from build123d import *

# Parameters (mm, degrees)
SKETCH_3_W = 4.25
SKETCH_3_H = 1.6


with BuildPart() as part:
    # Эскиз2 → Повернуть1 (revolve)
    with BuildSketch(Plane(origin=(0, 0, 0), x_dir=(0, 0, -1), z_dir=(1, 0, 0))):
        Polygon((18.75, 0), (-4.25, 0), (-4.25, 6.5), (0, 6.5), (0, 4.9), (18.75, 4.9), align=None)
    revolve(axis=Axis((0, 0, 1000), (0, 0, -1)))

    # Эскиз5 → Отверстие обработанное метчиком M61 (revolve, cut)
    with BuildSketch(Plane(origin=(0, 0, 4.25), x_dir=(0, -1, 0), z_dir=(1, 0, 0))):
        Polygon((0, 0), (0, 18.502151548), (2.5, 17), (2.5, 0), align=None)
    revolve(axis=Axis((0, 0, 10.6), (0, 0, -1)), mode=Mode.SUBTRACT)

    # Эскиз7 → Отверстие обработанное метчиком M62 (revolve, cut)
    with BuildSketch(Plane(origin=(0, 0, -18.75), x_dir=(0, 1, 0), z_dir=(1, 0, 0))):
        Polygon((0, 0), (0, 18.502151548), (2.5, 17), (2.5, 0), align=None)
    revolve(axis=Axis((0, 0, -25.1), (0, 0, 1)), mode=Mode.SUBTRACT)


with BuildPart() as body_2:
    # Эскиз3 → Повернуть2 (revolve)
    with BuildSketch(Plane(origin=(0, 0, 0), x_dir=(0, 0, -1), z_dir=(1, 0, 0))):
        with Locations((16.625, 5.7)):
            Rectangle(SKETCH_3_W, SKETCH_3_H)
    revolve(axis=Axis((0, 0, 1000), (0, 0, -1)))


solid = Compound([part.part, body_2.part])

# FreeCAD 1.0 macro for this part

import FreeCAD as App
import Part
import Sketcher
Q = App.Units.Quantity


def add_polygon(sketch, points):
    """Adds a closed chain of lines whose ends are joined by coincident constraints."""
    first, n = sketch.GeometryCount, len(points)
    for a, b in zip(points, points[1:] + points[:1]):
        sketch.addGeometry(Part.LineSegment(App.Vector(*a, 0), App.Vector(*b, 0)), False)
    for i in range(n):
        sketch.addConstraint(Sketcher.Constraint("Coincident", first + i, 2, first + (i + 1) % n, 1))

doc = App.newDocument("Part")
body = doc.addObject("PartDesign::Body", "Body")

# Sketch on YZ plane
sketch1 = doc.addObject("Sketcher::SketchObject", "Sketch")
body.addObject(sketch1)
sketch1.AttachmentSupport = (doc.YZ_Plane, [""])
sketch1.MapMode = "FlatFace"
add_polygon(sketch1, [(0, 4.2), (0, -18.8), (4.9, -18.8), (4.9, 0), (6.5, 0), (6.5, 4.2)])  # lines 0-5
sketch1.addConstraint(Sketcher.Constraint("Vertical", 0))
sketch1.addConstraint(Sketcher.Constraint("Horizontal", 1))
sketch1.addConstraint(Sketcher.Constraint("Vertical", 2))
sketch1.addConstraint(Sketcher.Constraint("Horizontal", 3))
sketch1.addConstraint(Sketcher.Constraint("Vertical", 4))
sketch1.addConstraint(Sketcher.Constraint("Horizontal", 5))
sketch1.addConstraint(Sketcher.Constraint("PointOnObject", 0, 2, -2))
sketch1.addConstraint(Sketcher.Constraint("PointOnObject", 2, 2, -1))
sketch1.addConstraint(Sketcher.Constraint("DistanceY", 0, 2, 0, 1, Q("23 mm")))
sketch1.addConstraint(Sketcher.Constraint("DistanceX", 1, 1, 1, 2, Q("4.9 mm")))
sketch1.addConstraint(Sketcher.Constraint("DistanceX", 3, 1, 3, 2, Q("1.6 mm")))
sketch1.addConstraint(Sketcher.Constraint("DistanceY", 2, 1, 2, 2, Q("18.75 mm")))
revolution = doc.addObject("PartDesign::Revolution", "Revolution")
body.addObject(revolution)
revolution.Profile = sketch1
revolution.ReferenceAxis = (sketch1, ["V_Axis"])
revolution.Angle = 360

# Sketch on YZ plane
sketch2 = doc.addObject("Sketcher::SketchObject", "Sketch001")
body.addObject(sketch2)
sketch2.AttachmentSupport = (doc.YZ_Plane, [""])
sketch2.MapMode = "FlatFace"
add_polygon(sketch2, [(0, -14.3), (0, 4.2), (-2.5, 4.2), (-2.5, -12.8)])  # lines 0-3
sketch2.addConstraint(Sketcher.Constraint("Vertical", 0))
sketch2.addConstraint(Sketcher.Constraint("Horizontal", 1))
sketch2.addConstraint(Sketcher.Constraint("Vertical", 2))
sketch2.addConstraint(Sketcher.Constraint("PointOnObject", 0, 2, -2))
sketch2.addConstraint(Sketcher.Constraint("DistanceY", 2, 2, 2, 1, Q("17 mm")))
sketch2.addConstraint(Sketcher.Constraint("Angle", 3, Q("-31 deg")))
sketch2.addConstraint(Sketcher.Constraint("DistanceX", 1, 2, 1, 1, Q("2.5 mm")))
sketch2.addConstraint(Sketcher.Constraint("DistanceY", -1, 1, 0, 2, Q("4.25 mm")))
groove = doc.addObject("PartDesign::Groove", "Groove")
body.addObject(groove)
groove.Profile = sketch2
groove.ReferenceAxis = (sketch2, ["V_Axis"])
groove.Angle = 360

# Sketch on YZ plane
sketch3 = doc.addObject("Sketcher::SketchObject", "Sketch002")
body.addObject(sketch3)
sketch3.AttachmentSupport = (doc.YZ_Plane, [""])
sketch3.MapMode = "FlatFace"
add_polygon(sketch3, [(0, -0.2), (0, -18.8), (2.5, -18.8), (2.5, -1.8)])  # lines 0-3
sketch3.addConstraint(Sketcher.Constraint("Vertical", 0))
sketch3.addConstraint(Sketcher.Constraint("Horizontal", 1))
sketch3.addConstraint(Sketcher.Constraint("Vertical", 2))
sketch3.addConstraint(Sketcher.Constraint("PointOnObject", 0, 2, -2))
sketch3.addConstraint(Sketcher.Constraint("DistanceY", 2, 1, 2, 2, Q("17 mm")))
sketch3.addConstraint(Sketcher.Constraint("Angle", 3, Q("149 deg")))
sketch3.addConstraint(Sketcher.Constraint("DistanceX", 1, 1, 1, 2, Q("2.5 mm")))
sketch3.addConstraint(Sketcher.Constraint("DistanceY", 0, 2, -1, 1, Q("18.75 mm")))
groove2 = doc.addObject("PartDesign::Groove", "Groove001")
body.addObject(groove2)
groove2.Profile = sketch3
groove2.ReferenceAxis = (sketch3, ["V_Axis"])
groove2.Angle = 360
body2 = doc.addObject("PartDesign::Body", "Body001")

# Sketch on YZ plane
sketch4 = doc.addObject("Sketcher::SketchObject", "Sketch003")
body2.addObject(sketch4)
sketch4.AttachmentSupport = (doc.getObject("YZ_Plane001"), [""])
sketch4.MapMode = "FlatFace"
add_polygon(sketch4, [(6.5, -14.5), (4.9, -14.5), (4.9, -18.8), (6.5, -18.8)])  # lines 0-3
sketch4.addConstraint(Sketcher.Constraint("Horizontal", 0))
sketch4.addConstraint(Sketcher.Constraint("Vertical", 1))
sketch4.addConstraint(Sketcher.Constraint("Horizontal", 2))
sketch4.addConstraint(Sketcher.Constraint("Vertical", 3))
sketch4.addConstraint(Sketcher.Constraint("DistanceX", 0, 2, 0, 1, Q("1.6 mm")))
sketch4.addConstraint(Sketcher.Constraint("DistanceY", 1, 2, 1, 1, Q("4.25 mm")))
sketch4.addConstraint(Sketcher.Constraint("DistanceX", -1, 1, 0, 2, Q("4.9 mm")))
sketch4.addConstraint(Sketcher.Constraint("DistanceY", 0, 2, -1, 1, Q("14.5 mm")))
revolution2 = doc.addObject("PartDesign::Revolution", "Revolution001")
body2.addObject(revolution2)
revolution2.Profile = sketch4
revolution2.ReferenceAxis = (sketch4, ["V_Axis"])
revolution2.Angle = 360

doc.recompute()
